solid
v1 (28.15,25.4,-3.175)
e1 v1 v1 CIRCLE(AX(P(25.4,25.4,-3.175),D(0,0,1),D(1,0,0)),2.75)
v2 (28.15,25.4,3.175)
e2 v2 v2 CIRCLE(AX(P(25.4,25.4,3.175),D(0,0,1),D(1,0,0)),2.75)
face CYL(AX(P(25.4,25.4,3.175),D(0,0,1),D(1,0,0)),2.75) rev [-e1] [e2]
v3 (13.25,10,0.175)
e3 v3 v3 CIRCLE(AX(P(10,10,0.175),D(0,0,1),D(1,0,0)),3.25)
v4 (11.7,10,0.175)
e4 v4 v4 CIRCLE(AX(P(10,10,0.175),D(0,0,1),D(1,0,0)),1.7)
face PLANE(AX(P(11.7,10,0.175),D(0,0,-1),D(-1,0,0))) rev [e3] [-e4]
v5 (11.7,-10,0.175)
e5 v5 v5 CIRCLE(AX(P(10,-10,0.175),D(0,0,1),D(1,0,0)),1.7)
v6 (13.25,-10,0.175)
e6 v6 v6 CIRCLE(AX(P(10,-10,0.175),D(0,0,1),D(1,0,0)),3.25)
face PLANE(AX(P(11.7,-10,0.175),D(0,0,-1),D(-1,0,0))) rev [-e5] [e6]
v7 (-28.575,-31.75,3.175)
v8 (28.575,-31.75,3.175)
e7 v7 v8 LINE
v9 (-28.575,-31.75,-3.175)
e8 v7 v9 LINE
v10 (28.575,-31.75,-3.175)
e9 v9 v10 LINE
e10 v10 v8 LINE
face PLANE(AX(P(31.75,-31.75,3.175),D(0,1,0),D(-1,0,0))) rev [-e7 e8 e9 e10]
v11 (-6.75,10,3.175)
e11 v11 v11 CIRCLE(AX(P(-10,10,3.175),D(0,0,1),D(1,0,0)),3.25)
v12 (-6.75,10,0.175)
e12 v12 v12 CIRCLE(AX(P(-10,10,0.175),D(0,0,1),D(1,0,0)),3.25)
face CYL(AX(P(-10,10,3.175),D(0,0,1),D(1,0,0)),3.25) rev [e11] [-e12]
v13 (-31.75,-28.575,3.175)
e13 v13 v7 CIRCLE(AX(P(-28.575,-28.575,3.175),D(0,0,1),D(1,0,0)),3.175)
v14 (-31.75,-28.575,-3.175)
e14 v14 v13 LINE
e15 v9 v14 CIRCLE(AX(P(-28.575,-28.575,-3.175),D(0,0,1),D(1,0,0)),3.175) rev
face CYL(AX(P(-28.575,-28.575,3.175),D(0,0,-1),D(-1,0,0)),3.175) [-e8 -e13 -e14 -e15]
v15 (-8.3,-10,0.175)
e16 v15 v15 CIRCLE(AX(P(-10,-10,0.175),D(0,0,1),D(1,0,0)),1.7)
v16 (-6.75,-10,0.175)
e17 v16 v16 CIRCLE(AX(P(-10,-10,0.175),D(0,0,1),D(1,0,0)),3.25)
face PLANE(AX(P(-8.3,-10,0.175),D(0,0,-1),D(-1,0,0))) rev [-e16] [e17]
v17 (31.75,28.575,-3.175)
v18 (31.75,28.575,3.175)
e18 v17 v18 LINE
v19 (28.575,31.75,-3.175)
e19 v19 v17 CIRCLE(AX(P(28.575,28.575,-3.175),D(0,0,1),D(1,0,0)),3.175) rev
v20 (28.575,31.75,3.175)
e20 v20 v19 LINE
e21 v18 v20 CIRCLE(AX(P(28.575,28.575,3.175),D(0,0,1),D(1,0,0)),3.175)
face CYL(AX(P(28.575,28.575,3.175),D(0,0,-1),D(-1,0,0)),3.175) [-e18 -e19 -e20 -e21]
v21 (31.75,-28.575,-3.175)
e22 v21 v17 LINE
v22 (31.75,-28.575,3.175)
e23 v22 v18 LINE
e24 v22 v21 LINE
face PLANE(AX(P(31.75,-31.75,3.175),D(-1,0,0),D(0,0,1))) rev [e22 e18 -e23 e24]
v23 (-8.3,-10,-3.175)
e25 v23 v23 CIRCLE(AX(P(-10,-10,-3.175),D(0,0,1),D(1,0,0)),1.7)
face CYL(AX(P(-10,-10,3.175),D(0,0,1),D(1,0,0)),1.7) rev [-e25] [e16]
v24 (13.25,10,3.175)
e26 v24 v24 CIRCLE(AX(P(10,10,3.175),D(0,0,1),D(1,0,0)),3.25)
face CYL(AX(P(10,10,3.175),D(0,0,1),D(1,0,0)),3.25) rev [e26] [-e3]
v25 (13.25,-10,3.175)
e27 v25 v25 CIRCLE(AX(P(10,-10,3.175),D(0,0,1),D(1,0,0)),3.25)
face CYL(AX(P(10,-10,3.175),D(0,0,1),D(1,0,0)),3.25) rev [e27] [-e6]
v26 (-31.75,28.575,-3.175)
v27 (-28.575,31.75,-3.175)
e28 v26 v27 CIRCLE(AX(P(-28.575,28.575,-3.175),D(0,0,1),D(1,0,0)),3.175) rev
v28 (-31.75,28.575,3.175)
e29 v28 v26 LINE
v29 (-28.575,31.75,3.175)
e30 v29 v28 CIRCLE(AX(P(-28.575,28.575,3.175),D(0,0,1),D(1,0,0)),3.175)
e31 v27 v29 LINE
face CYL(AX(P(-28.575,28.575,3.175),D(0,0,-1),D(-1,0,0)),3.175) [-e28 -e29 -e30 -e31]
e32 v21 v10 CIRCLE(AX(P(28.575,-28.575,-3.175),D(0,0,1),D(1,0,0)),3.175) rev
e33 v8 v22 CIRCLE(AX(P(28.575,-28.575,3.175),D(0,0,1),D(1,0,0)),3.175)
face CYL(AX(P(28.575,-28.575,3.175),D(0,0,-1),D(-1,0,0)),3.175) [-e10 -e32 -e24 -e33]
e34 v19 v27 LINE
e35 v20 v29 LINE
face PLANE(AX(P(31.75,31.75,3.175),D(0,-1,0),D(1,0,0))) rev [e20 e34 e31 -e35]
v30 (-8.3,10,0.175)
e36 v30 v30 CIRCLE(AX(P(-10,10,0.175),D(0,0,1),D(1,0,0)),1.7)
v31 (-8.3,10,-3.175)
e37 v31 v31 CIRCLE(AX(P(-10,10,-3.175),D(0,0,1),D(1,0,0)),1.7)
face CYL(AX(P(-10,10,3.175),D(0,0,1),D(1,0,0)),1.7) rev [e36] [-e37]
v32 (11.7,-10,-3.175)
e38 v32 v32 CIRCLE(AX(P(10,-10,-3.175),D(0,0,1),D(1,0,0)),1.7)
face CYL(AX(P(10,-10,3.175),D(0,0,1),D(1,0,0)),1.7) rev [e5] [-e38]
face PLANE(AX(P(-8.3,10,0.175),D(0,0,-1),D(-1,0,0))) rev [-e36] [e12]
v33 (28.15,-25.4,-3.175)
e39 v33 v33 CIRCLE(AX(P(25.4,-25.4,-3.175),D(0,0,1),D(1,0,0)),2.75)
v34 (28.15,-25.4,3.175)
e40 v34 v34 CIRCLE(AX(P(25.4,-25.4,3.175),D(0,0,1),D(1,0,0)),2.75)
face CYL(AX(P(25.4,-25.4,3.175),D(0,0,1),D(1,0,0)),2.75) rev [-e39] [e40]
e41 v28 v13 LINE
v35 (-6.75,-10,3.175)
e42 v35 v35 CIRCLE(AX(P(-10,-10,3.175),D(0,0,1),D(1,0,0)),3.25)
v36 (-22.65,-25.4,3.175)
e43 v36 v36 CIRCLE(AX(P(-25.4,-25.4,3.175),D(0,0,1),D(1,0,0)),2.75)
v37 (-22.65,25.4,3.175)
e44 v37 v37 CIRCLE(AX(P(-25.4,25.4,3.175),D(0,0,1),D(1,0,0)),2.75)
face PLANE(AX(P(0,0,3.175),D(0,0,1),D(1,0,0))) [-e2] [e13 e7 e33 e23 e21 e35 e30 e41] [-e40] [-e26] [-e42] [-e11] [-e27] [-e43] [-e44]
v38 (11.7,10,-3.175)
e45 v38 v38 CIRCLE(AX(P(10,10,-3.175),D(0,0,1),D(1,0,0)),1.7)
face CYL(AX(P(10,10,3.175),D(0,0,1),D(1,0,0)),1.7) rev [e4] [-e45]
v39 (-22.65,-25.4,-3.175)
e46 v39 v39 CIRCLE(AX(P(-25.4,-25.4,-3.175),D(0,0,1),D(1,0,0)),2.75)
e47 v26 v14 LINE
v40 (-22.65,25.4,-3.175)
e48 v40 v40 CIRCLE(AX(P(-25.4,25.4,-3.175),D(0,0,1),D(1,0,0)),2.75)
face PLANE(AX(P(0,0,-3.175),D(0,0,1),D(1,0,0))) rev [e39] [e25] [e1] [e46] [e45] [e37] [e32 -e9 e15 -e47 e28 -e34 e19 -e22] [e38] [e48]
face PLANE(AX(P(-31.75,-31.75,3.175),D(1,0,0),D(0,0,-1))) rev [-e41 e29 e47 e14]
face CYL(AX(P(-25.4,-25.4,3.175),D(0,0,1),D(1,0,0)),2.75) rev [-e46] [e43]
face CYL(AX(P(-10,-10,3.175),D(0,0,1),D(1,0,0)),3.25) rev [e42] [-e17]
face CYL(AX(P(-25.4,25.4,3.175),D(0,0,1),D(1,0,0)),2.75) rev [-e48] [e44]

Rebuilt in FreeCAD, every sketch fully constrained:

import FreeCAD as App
import Part
import Sketcher
from FreeCAD import Vector
Q = App.Units.Quantity


def edges_at(feature, points):
    """Names of the edges that pass closest to the given points."""
    edges = feature.Shape.Edges
    near = lambda p: min(range(len(edges)), key=lambda i: edges[i].distToShape(Part.Vertex(*p))[0])
    return sorted({f"Edge{near(p) + 1}" for p in points})


def add_polygon(sketch, points):
    """Adds a closed chain of lines whose ends are joined by coincident constraints."""
    first, n = sketch.GeometryCount, len(points)
    for a, b in zip(points, points[1:] + points[:1]):
        sketch.addGeometry(Part.LineSegment(App.Vector(*a, 0), App.Vector(*b, 0)), False)
    for i in range(n):
        sketch.addConstraint(Sketcher.Constraint("Coincident", first + i, 2, first + (i + 1) % n, 1))

doc = App.newDocument("Part")
params = doc.addObject("Spreadsheet::Sheet", "Params")
for row, (alias, value) in enumerate([
    ("sketch1_width", "63.5 mm"),
    ("pad1_length", "6.35 mm"),
    ("sketch2_diameter", "3.4 mm"),
    ("hole_diameter", "3.4 mm"),
    ("hole_cbore_diameter", "6.5 mm"),
    ("hole_cbore_depth", "3 mm"),
    ("sketch3_diameter", "5.5 mm"),
    ("hole2_diameter", "5.5 mm"),
    ("fillet_radius", "3.175 mm"),
], start=1):
    params.set(f"A{row}", alias)
    params.set(f"B{row}", "=" + value)
    params.setAlias(f"B{row}", alias)

body = doc.addObject("PartDesign::Body", "Body")

# Sketch on XY plane
sketch1 = body.newObject("Sketcher::SketchObject", "Sketch")
sketch1.AttachmentSupport = (doc.getObject("XY_Plane"), [""])
sketch1.MapMode = "FlatFace"
add_polygon(sketch1, [(-32, 32), (-32, -32), (32, -32), (32, 32)])  # lines 0-3
sketch1.addConstraint(Sketcher.Constraint("Vertical", 0))
sketch1.addConstraint(Sketcher.Constraint("Horizontal", 1))
sketch1.addConstraint(Sketcher.Constraint("Vertical", 2))
sketch1.addConstraint(Sketcher.Constraint("Horizontal", 3))
sketch1.addConstraint(Sketcher.Constraint("Symmetric", 0, 2, 2, 2, -1, 1))
sketch1.addConstraint(Sketcher.Constraint("Equal", 3, 0))
sketch1.addConstraint(Sketcher.Constraint("DistanceX", 1, 1, 1, 2, Q("63.5 mm")))
sketch1.setExpression("Constraints[10]", "Params.sketch1_width")
pad1 = body.newObject("PartDesign::Pad", "Pad")
pad1.Profile = sketch1
pad1.setExpression("Length", "Params.pad1_length")
pad1.Midplane = True

# Sketch on XY plane
sketch2 = body.newObject("Sketcher::SketchObject", "Sketch001")
sketch2.AttachmentSupport = (doc.getObject("XY_Plane"), [""])
sketch2.MapMode = "FlatFace"
sketch2.AttachmentOffset = App.Placement(Vector(0, 0, 3.175), App.Rotation())
sketch2.addGeometry(Part.Circle(Vector(-10, -10, 0), Vector(0, 0, 1), 1.7), False)
sketch2.addGeometry(Part.Circle(Vector(10, 10, 0), Vector(0, 0, 1), 1.7), False)
sketch2.addGeometry(Part.Circle(Vector(-10, 10, 0), Vector(0, 0, 1), 1.7), False)
sketch2.addGeometry(Part.Circle(Vector(10, -10, 0), Vector(0, 0, 1), 1.7), False)
sketch2.addConstraint(Sketcher.Constraint("Equal", 0, 1))
sketch2.addConstraint(Sketcher.Constraint("Equal", 1, 2))
sketch2.addConstraint(Sketcher.Constraint("Equal", 2, 3))
sketch2.addConstraint(Sketcher.Constraint("Symmetric", 0, 3, 1, 3, -1, 1))
sketch2.addConstraint(Sketcher.Constraint("Symmetric", 2, 3, 3, 3, -1, 1))
sketch2.addConstraint(Sketcher.Constraint("Symmetric", 1, 3, 2, 3, -2))
sketch2.addConstraint(Sketcher.Constraint("Diameter", 0, Q("3.4 mm")))
sketch2.addConstraint(Sketcher.Constraint("DistanceX", 0, 3, -1, 1, Q("10 mm")))
sketch2.addConstraint(Sketcher.Constraint("DistanceY", 0, 3, -1, 1, Q("10 mm")))
sketch2.setExpression("Constraints[6]", "Params.sketch2_diameter")
doc.recompute()
hole = body.newObject("PartDesign::Hole", "Hole")
hole.Profile = sketch2
hole.ThreadType = "None"
hole.setExpression("Diameter", "Params.hole_diameter")
hole.DepthType = "ThroughAll"
hole.HoleCutType = "Counterbore"
hole.setExpression("HoleCutDiameter", "Params.hole_cbore_diameter")
hole.setExpression("HoleCutDepth", "Params.hole_cbore_depth")

# Sketch on XY plane
sketch3 = body.newObject("Sketcher::SketchObject", "Sketch002")
sketch3.AttachmentSupport = (doc.getObject("XY_Plane"), [""])
sketch3.MapMode = "FlatFace"
sketch3.AttachmentOffset = App.Placement(Vector(0, 0, 3.175), App.Rotation())
sketch3.addGeometry(Part.Circle(Vector(-25.4, -25.4, 0), Vector(0, 0, 1), 2.8), False)
sketch3.addGeometry(Part.Circle(Vector(-25.4, 25.4, 0), Vector(0, 0, 1), 2.8), False)
sketch3.addGeometry(Part.Circle(Vector(25.4, -25.4, 0), Vector(0, 0, 1), 2.8), False)
sketch3.addGeometry(Part.Circle(Vector(25.4, 25.4, 0), Vector(0, 0, 1), 2.8), False)
sketch3.addConstraint(Sketcher.Constraint("Equal", 0, 1))
sketch3.addConstraint(Sketcher.Constraint("Equal", 1, 2))
sketch3.addConstraint(Sketcher.Constraint("Equal", 2, 3))
sketch3.addConstraint(Sketcher.Constraint("Symmetric", 1, 3, 2, 3, -1, 1))
sketch3.addConstraint(Sketcher.Constraint("Symmetric", 0, 3, 3, 3, -1, 1))
sketch3.addConstraint(Sketcher.Constraint("Symmetric", 0, 3, 2, 3, -2))
sketch3.addConstraint(Sketcher.Constraint("Diameter", 0, Q("5.5 mm")))
sketch3.addConstraint(Sketcher.Constraint("DistanceX", 0, 3, -1, 1, Q("25.4 mm")))
sketch3.addConstraint(Sketcher.Constraint("DistanceY", 0, 3, -1, 1, Q("25.4 mm")))
sketch3.setExpression("Constraints[6]", "Params.sketch3_diameter")
doc.recompute()
hole2 = body.newObject("PartDesign::Hole", "Hole001")
hole2.Profile = sketch3
hole2.ThreadType = "None"
hole2.setExpression("Diameter", "Params.hole2_diameter")
hole2.DepthType = "ThroughAll"
doc.recompute()

fillet = body.newObject("PartDesign::Fillet", "Fillet")
fillet.Base = (hole2, edges_at(hole2, [
    (-31.75, 31.75, 0),
    (31.75, 31.75, 0),
    (31.75, -31.75, 0),
    (-31.75, -31.75, 0),
]))
fillet.setExpression("Radius", "Params.fillet_radius")

doc.recompute()
